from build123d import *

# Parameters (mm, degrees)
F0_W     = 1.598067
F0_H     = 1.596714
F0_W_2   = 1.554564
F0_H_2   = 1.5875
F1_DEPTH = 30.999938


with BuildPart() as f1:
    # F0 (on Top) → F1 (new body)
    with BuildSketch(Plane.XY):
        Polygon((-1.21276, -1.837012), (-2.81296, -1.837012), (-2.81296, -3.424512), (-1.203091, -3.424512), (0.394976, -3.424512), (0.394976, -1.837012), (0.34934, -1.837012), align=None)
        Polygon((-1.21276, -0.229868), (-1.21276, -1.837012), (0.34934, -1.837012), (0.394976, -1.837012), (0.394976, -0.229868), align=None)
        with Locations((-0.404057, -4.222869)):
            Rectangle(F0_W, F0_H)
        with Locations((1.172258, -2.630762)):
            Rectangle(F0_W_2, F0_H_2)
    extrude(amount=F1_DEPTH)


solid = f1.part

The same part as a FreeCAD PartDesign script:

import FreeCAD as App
import Part
import Sketcher
from FreeCAD import Vector
Q = App.Units.Quantity


def add_polygon(sketch, points):
    """Adds a closed chain of lines whose ends are joined by coincident constraints."""
    first, n = sketch.GeometryCount, len(points)
    for a, b in zip(points, points[1:] + points[:1]):
        sketch.addGeometry(Part.LineSegment(App.Vector(*a, 0), App.Vector(*b, 0)), False)
    for i in range(n):
        sketch.addConstraint(Sketcher.Constraint("Coincident", first + i, 2, first + (i + 1) % n, 1))

doc = App.newDocument("Part")
body = doc.addObject("PartDesign::Body", "Body")

sketch1 = body.newObject("Sketcher::SketchObject", "Sketch")
sketch1.AttachmentSupport = (doc.getObject("XY_Plane"), [""])
sketch1.MapMode = "FlatFace"
add_polygon(sketch1, [(-2.81296, -1.837012), (-2.81296, -3.424512), (-1.203091, -3.424512), (-1.203091, -5.021226), (0.394977, -5.021226), (0.394977, -3.424512), (1.94954, -3.424512), (1.94954, -1.837012), (0.394976, -1.837012), (0.394976, -0.229868), (-1.21276, -0.229868), (-1.21276, -1.837012)])
sketch1.addConstraint([
    Sketcher.Constraint("Vertical", 0),
    Sketcher.Constraint("Horizontal", 1),
    Sketcher.Constraint("Vertical", 2),
    Sketcher.Constraint("Horizontal", 3),
    Sketcher.Constraint("Vertical", 4),
    Sketcher.Constraint("Horizontal", 5),
    Sketcher.Constraint("Vertical", 6),
    Sketcher.Constraint("Horizontal", 7),
    Sketcher.Constraint("Vertical", 8),
    Sketcher.Constraint("Horizontal", 9),
    Sketcher.Constraint("Vertical", 10),
    Sketcher.Constraint("Horizontal", 11),
    Sketcher.Constraint("Horizontal", 1, 2, 4, 2),
    Sketcher.Constraint("Horizontal", 7, 2, 10, 2),
    Sketcher.Constraint("Vertical", 4, 2, 7, 2),
    Sketcher.Constraint("DistanceX", 11, 2, 11, 1, Q("0.063 in")),
    Sketcher.Constraint("DistanceY", 0, 2, 0, 1, Q("0.0625 in")),
    Sketcher.Constraint("DistanceX", 0, 2, 5, 2, Q("0.1875 in")),
    Sketcher.Constraint("DistanceX", 1, 1, 1, 2, Q("1.609869 mm")),
    Sketcher.Constraint("DistanceX", 3, 1, 3, 2, Q("1.598067 mm")),
    Sketcher.Constraint("DistanceY", 2, 2, 2, 1, Q("1.596714 mm")),
    Sketcher.Constraint("DistanceY", 8, 1, 8, 2, Q("1.607144 mm")),
    Sketcher.Constraint("DistanceX", 0, 2, -1, 1, Q("2.81296 mm")),
    Sketcher.Constraint("DistanceY", 0, 2, -1, 1, Q("3.424512 mm")),
])
pad1 = body.newObject("PartDesign::Pad", "Pad")
pad1.Profile = sketch1
pad1.Length = 30.999938

doc.recompute()
